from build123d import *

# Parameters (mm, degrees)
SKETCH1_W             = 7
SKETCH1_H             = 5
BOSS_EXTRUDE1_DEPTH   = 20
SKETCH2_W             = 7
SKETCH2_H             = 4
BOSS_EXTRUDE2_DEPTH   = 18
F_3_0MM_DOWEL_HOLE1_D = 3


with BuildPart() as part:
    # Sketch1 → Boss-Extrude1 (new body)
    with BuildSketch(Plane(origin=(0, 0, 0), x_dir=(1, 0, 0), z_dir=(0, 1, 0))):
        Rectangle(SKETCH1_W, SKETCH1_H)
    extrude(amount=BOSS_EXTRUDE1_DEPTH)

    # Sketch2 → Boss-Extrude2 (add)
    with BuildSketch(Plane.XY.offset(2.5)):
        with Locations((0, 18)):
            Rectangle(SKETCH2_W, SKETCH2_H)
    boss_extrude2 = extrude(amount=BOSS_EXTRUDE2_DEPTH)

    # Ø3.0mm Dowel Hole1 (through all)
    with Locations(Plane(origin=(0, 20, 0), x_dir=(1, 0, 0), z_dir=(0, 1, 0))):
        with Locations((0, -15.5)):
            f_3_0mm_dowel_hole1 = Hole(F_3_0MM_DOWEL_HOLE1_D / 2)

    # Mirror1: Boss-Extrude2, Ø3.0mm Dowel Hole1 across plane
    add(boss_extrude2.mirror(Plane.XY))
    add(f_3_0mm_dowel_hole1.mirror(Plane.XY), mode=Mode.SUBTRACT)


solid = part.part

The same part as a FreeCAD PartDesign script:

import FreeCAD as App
import Part
import Sketcher
from FreeCAD import Vector

doc = App.newDocument("Part")
params = doc.addObject("Spreadsheet::Sheet", "Params")
for row, (alias, value) in enumerate([
    ("sketch1_width", "7 mm"),
    ("sketch1_height", "5 mm"),
    ("pad1_length", "20 mm"),
    ("sketch2_width", "7 mm"),
    ("sketch2_height", "4 mm"),
    ("pad2_length", "18 mm"),
    ("sketch3_diameter", "3 mm"),
    ("hole_diameter", "3 mm"),
], start=1):
    params.set(f"A{row}", alias)
    params.set(f"B{row}", "=" + value)
    params.setAlias(f"B{row}", alias)

body = doc.addObject("PartDesign::Body", "Body")

# Sketch on XZ plane
sketch1 = doc.addObject("Sketcher::SketchObject", "Sketch")
body.addObject(sketch1)
sketch1.AttachmentSupport = (doc.XZ_Plane, [""])
sketch1.MapMode = "FlatFace"
sketch1.addGeometry(Part.LineSegment(Vector(-4, -2, 0), Vector(-4, 2, 0)), False)
sketch1.addGeometry(Part.LineSegment(Vector(-4, 2, 0), Vector(4, 2, 0)), False)
sketch1.addGeometry(Part.LineSegment(Vector(4, 2, 0), Vector(4, -2, 0)), False)
sketch1.addGeometry(Part.LineSegment(Vector(4, -2, 0), Vector(-4, -2, 0)), False)
sketch1.addConstraint(Sketcher.Constraint("Coincident", 0, 2, 1, 1))
sketch1.addConstraint(Sketcher.Constraint("Coincident", 1, 2, 2, 1))
sketch1.addConstraint(Sketcher.Constraint("Coincident", 2, 2, 3, 1))
sketch1.addConstraint(Sketcher.Constraint("Coincident", 3, 2, 0, 1))
sketch1.addConstraint(Sketcher.Constraint("Vertical", 0))
sketch1.addConstraint(Sketcher.Constraint("Horizontal", 1))
sketch1.addConstraint(Sketcher.Constraint("Vertical", 2))
sketch1.addConstraint(Sketcher.Constraint("Horizontal", 3))
sketch1.addConstraint(Sketcher.Constraint("Symmetric", 0, 2, 2, 2, -1, 1))
sketch1.addConstraint(Sketcher.Constraint("DistanceX", 1, 1, 1, 2, 7.0))
sketch1.addConstraint(Sketcher.Constraint("DistanceY", 0, 1, 0, 2, 5.0))
sketch1.setExpression("Constraints[9]", "Params.sketch1_width")
sketch1.setExpression("Constraints[10]", "Params.sketch1_height")
pad1 = doc.addObject("PartDesign::Pad", "Pad")
body.addObject(pad1)
pad1.Profile = sketch1
pad1.setExpression("Length", "Params.pad1_length")
pad1.Reversed = True

# Sketch on XY plane
sketch2 = doc.addObject("Sketcher::SketchObject", "Sketch001")
body.addObject(sketch2)
sketch2.AttachmentSupport = (doc.XY_Plane, [""])
sketch2.MapMode = "FlatFace"
sketch2.AttachmentOffset = App.Placement(Vector(0, 0, 2.5), App.Rotation())
sketch2.addGeometry(Part.LineSegment(Vector(-3.5, 20, 0), Vector(-3.5, 16, 0)), False)
sketch2.addGeometry(Part.LineSegment(Vector(-3.5, 16, 0), Vector(3.5, 16, 0)), False)
sketch2.addGeometry(Part.LineSegment(Vector(3.5, 16, 0), Vector(3.5, 20, 0)), False)
sketch2.addGeometry(Part.LineSegment(Vector(3.5, 20, 0), Vector(-3.5, 20, 0)), False)
sketch2.addConstraint(Sketcher.Constraint("Coincident", 0, 2, 1, 1))
sketch2.addConstraint(Sketcher.Constraint("Coincident", 1, 2, 2, 1))
sketch2.addConstraint(Sketcher.Constraint("Coincident", 2, 2, 3, 1))
sketch2.addConstraint(Sketcher.Constraint("Coincident", 3, 2, 0, 1))
sketch2.addConstraint(Sketcher.Constraint("Vertical", 0))
sketch2.addConstraint(Sketcher.Constraint("Horizontal", 1))
sketch2.addConstraint(Sketcher.Constraint("Vertical", 2))
sketch2.addConstraint(Sketcher.Constraint("Horizontal", 3))
sketch2.addConstraint(Sketcher.Constraint("DistanceX", 1, 1, 1, 2, 7.0))
sketch2.addConstraint(Sketcher.Constraint("DistanceY", 0, 2, 0, 1, 4.0))
sketch2.addConstraint(Sketcher.Constraint("DistanceY", -1, 1, 0, 2, 16.0))
sketch2.addConstraint(Sketcher.Constraint("DistanceX", 0, 2, -1, 1, 3.5))
sketch2.setExpression("Constraints[8]", "Params.sketch2_width")
sketch2.setExpression("Constraints[9]", "Params.sketch2_height")
pad2 = doc.addObject("PartDesign::Pad", "Pad001")
body.addObject(pad2)
pad2.Profile = sketch2
pad2.setExpression("Length", "Params.pad2_length")

# Sketch on XZ plane
sketch3 = doc.addObject("Sketcher::SketchObject", "Sketch002")
body.addObject(sketch3)
sketch3.AttachmentSupport = (doc.XZ_Plane, [""])
sketch3.MapMode = "FlatFace"
sketch3.AttachmentOffset = App.Placement(Vector(0, 0, -20), App.Rotation())
sketch3.addGeometry(Part.Circle(Vector(0, 15.5, 0), Vector(0, 0, 1), 1.5), False)
sketch3.addConstraint(Sketcher.Constraint("PointOnObject", 0, 3, -2))
sketch3.addConstraint(Sketcher.Constraint("Diameter", 0, 3.0))
sketch3.addConstraint(Sketcher.Constraint("DistanceY", -1, 1, 0, 3, 15.5))
sketch3.setExpression("Constraints[1]", "Params.sketch3_diameter")
doc.recompute()
hole = doc.addObject("PartDesign::Hole", "Hole")
body.addObject(hole)
hole.Profile = sketch3
hole.ThreadType = "None"
hole.setExpression("Diameter", "Params.hole_diameter")
hole.DepthType = "ThroughAll"
hole.Reversed = True
doc.recompute()

mirrored = doc.addObject("PartDesign::Mirrored", "Mirrored")
body.addObject(mirrored)
mirrored.Originals = [pad2, hole]
mirrored.MirrorPlane = (doc.XY_Plane, [""])
body.Tip = mirrored

doc.recompute()
